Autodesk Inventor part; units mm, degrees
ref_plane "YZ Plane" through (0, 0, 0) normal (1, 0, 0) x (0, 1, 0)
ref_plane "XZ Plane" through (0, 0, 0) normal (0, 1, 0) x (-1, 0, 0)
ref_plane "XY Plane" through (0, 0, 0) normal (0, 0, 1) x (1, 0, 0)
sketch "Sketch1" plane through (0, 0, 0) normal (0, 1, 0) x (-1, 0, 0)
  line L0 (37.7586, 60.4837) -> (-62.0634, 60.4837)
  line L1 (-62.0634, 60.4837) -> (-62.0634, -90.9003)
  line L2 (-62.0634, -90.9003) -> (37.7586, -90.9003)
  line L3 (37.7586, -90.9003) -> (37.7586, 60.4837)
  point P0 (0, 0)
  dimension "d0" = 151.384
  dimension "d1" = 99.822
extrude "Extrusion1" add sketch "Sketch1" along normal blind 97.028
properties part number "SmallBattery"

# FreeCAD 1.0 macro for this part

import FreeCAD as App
import Part
import Sketcher
Q = App.Units.Quantity


def add_polygon(sketch, points):
    """Adds a closed chain of lines whose ends are joined by coincident constraints."""
    first, n = sketch.GeometryCount, len(points)
    for a, b in zip(points, points[1:] + points[:1]):
        sketch.addGeometry(Part.LineSegment(App.Vector(*a, 0), App.Vector(*b, 0)), False)
    for i in range(n):
        sketch.addConstraint(Sketcher.Constraint("Coincident", first + i, 2, first + (i + 1) % n, 1))

doc = App.newDocument("Part")
body = doc.addObject("PartDesign::Body", "Body")

# Sketch on XZ plane
sketch1 = body.newObject("Sketcher::SketchObject", "Sketch")
sketch1.AttachmentSupport = (doc.getObject("XZ_Plane"), [""])
sketch1.MapMode = "FlatFace"
add_polygon(sketch1, [(-38, -91), (-38, 60), (62, 60), (62, -91)])  # lines 0-3
sketch1.addConstraint([
    Sketcher.Constraint("Vertical", 0),
    Sketcher.Constraint("Horizontal", 1),
    Sketcher.Constraint("Vertical", 2),
    Sketcher.Constraint("Horizontal", 3),
    Sketcher.Constraint("DistanceX", 1, 1, 1, 2, Q("3.93 in")),
    Sketcher.Constraint("DistanceY", 0, 1, 0, 2, Q("5.96 in")),
    Sketcher.Constraint("DistanceX", 0, 2, -1, 1, Q("37.7586 mm")),
    Sketcher.Constraint("DistanceY", -1, 1, 0, 2, Q("60.4837 mm")),
])
pad1 = body.newObject("PartDesign::Pad", "Pad")
pad1.Profile = sketch1
pad1.Length = Q("3.82 in")
pad1.Reversed = True

doc.recompute()
